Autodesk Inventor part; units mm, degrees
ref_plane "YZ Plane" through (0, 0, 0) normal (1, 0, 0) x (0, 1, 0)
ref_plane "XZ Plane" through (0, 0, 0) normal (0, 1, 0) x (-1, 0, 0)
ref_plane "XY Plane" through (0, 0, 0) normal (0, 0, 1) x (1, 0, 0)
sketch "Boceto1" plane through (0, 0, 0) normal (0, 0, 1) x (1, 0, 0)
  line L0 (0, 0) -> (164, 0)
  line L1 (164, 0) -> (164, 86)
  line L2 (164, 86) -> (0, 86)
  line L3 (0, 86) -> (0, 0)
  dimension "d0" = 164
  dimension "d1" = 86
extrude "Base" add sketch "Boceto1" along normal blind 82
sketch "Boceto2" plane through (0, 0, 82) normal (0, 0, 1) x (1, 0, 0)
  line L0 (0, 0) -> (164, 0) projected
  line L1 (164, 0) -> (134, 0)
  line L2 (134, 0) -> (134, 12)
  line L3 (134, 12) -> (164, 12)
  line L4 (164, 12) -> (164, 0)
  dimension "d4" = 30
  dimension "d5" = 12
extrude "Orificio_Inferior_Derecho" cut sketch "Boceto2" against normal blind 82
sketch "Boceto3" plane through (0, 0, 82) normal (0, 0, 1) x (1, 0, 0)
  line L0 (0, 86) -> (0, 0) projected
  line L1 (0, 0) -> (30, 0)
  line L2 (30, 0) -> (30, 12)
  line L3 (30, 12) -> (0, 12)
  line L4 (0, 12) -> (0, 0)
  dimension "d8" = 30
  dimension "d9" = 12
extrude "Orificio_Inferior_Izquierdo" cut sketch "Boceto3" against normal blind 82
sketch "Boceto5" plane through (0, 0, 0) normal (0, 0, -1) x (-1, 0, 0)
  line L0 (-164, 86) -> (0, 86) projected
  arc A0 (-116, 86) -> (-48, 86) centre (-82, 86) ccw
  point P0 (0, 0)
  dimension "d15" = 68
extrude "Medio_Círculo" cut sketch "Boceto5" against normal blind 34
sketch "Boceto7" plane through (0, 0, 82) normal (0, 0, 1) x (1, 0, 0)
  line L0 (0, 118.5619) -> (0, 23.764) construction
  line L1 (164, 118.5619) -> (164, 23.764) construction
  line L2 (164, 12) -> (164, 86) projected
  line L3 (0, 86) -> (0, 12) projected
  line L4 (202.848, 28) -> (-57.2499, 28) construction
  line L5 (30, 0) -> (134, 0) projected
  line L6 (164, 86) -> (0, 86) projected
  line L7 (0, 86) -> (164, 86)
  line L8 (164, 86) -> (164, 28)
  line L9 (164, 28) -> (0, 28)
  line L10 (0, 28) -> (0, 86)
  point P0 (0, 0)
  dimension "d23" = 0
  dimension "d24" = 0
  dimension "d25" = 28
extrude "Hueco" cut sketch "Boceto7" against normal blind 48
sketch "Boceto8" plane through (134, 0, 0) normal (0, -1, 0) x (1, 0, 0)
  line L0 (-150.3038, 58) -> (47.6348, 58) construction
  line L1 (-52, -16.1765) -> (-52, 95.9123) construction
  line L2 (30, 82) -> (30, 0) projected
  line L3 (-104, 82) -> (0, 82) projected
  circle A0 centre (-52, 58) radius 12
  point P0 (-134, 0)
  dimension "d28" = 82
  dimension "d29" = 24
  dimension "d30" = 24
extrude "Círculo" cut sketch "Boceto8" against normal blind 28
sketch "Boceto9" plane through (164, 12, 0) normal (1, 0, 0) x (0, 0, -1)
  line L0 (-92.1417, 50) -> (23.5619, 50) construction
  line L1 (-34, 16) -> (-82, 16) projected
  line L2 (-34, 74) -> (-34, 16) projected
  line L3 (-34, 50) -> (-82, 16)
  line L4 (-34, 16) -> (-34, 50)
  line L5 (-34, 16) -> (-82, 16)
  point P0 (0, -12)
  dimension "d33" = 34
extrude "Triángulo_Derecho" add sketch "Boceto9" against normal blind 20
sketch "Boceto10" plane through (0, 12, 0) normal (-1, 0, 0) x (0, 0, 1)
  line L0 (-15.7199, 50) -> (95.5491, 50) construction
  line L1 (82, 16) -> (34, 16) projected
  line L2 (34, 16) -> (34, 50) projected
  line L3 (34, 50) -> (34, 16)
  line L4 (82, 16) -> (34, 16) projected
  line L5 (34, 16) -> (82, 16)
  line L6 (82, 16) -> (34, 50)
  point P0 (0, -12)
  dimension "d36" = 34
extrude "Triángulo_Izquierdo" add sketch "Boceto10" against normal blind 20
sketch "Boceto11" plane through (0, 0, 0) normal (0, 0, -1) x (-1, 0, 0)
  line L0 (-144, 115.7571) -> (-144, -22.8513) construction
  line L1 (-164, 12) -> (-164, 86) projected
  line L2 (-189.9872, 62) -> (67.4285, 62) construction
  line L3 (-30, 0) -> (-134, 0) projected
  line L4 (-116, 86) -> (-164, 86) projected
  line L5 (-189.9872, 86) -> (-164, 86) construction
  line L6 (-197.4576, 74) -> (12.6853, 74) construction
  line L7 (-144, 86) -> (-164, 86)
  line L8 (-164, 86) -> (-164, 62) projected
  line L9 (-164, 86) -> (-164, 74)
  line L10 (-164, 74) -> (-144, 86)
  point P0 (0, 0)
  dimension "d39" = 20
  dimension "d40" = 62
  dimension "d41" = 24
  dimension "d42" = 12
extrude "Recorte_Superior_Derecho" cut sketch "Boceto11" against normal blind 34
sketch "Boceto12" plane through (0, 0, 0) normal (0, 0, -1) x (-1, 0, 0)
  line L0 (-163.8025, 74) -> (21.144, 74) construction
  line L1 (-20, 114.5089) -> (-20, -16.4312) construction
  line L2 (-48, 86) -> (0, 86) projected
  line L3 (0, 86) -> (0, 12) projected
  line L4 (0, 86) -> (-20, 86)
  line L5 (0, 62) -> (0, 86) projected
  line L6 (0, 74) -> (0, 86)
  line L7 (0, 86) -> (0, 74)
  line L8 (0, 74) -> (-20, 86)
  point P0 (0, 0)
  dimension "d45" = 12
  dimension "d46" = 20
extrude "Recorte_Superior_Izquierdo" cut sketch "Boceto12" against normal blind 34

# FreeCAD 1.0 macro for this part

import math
import FreeCAD as App
import Part
import Sketcher
from FreeCAD import Vector
Q = App.Units.Quantity


def add_polygon(sketch, points):
    """Adds a closed chain of lines whose ends are joined by coincident constraints."""
    first, n = sketch.GeometryCount, len(points)
    for a, b in zip(points, points[1:] + points[:1]):
        sketch.addGeometry(Part.LineSegment(App.Vector(*a, 0), App.Vector(*b, 0)), False)
    for i in range(n):
        sketch.addConstraint(Sketcher.Constraint("Coincident", first + i, 2, first + (i + 1) % n, 1))

doc = App.newDocument("Part")
params = doc.addObject("Spreadsheet::Sheet", "Params")
for row, (alias, value) in enumerate([
    ("sketch1_width", "164 mm"),
    ("sketch1_height", "86 mm"),
    ("pad1_length", "82 mm"),
    ("sketch2_width", "30 mm"),
    ("sketch2_height", "12 mm"),
    ("pocket1_length", "82 mm"),
    ("sketch3_width", "30 mm"),
    ("sketch3_height", "12 mm"),
    ("pocket2_length", "82 mm"),
    ("sketch4_radius", "34 mm"),
    ("pocket3_length", "34 mm"),
    ("sketch5_width", "164 mm"),
    ("sketch5_height", "58 mm"),
    ("pocket4_length", "48 mm"),
    ("sketch6_diameter", "24 mm"),
    ("pocket5_length", "28 mm"),
    ("sketch7_width", "34 mm"),
    ("sketch7_height", "48 mm"),
    ("pad2_length", "20 mm"),
    ("sketch8_width", "34 mm"),
    ("sketch8_height", "48 mm"),
    ("pad3_length", "20 mm"),
    ("sketch9_width", "20 mm"),
    ("sketch9_height", "12 mm"),
    ("pocket6_length", "34 mm"),
    ("sketch10_width", "20 mm"),
    ("sketch10_height", "12 mm"),
    ("pocket7_length", "34 mm"),
], start=1):
    params.set(f"A{row}", alias)
    params.set(f"B{row}", "=" + value)
    params.setAlias(f"B{row}", alias)

body = doc.addObject("PartDesign::Body", "Body")

sketch1 = body.newObject("Sketcher::SketchObject", "Sketch")
sketch1.AttachmentSupport = (doc.getObject("XY_Plane"), [""])
sketch1.MapMode = "FlatFace"
add_polygon(sketch1, [(0, 86), (0, 0), (164, 0), (164, 86)])
sketch1.addConstraint(Sketcher.Constraint("Vertical", 0))
sketch1.addConstraint(Sketcher.Constraint("Horizontal", 1))
sketch1.addConstraint(Sketcher.Constraint("Vertical", 2))
sketch1.addConstraint(Sketcher.Constraint("Horizontal", 3))
sketch1.addConstraint(Sketcher.Constraint("Coincident", 0, 2, -1, 1))
sketch1.addConstraint(Sketcher.Constraint("DistanceX", 1, 1, 1, 2, Q("164 mm")))
sketch1.addConstraint(Sketcher.Constraint("DistanceY", 0, 2, 0, 1, Q("86 mm")))
sketch1.setExpression("Constraints[9]", "Params.sketch1_width")
sketch1.setExpression("Constraints[10]", "Params.sketch1_height")
pad1 = body.newObject("PartDesign::Pad", "Pad")
pad1.Profile = sketch1
pad1.setExpression("Length", "Params.pad1_length")

sketch2 = body.newObject("Sketcher::SketchObject", "Sketch001")
sketch2.AttachmentSupport = (doc.getObject("XY_Plane"), [""])
sketch2.MapMode = "FlatFace"
sketch2.AttachmentOffset = App.Placement(Vector(0, 0, 82), App.Rotation())
add_polygon(sketch2, [(134, 12), (134, 0), (164, 0), (164, 12)])
sketch2.addConstraint(Sketcher.Constraint("Vertical", 0))
sketch2.addConstraint(Sketcher.Constraint("Horizontal", 1))
sketch2.addConstraint(Sketcher.Constraint("Vertical", 2))
sketch2.addConstraint(Sketcher.Constraint("Horizontal", 3))
sketch2.addConstraint(Sketcher.Constraint("PointOnObject", 0, 2, -1))
sketch2.addConstraint(Sketcher.Constraint("DistanceX", 1, 1, 1, 2, Q("30 mm")))
sketch2.addConstraint(Sketcher.Constraint("DistanceY", 0, 2, 0, 1, Q("12 mm")))
sketch2.addConstraint(Sketcher.Constraint("DistanceX", -1, 1, 0, 2, Q("134 mm")))
sketch2.setExpression("Constraints[9]", "Params.sketch2_width")
sketch2.setExpression("Constraints[10]", "Params.sketch2_height")
pocket1 = body.newObject("PartDesign::Pocket", "Pocket")
pocket1.Profile = sketch2
pocket1.setExpression("Length", "Params.pocket1_length")

sketch3 = body.newObject("Sketcher::SketchObject", "Sketch002")
sketch3.AttachmentSupport = (doc.getObject("XY_Plane"), [""])
sketch3.MapMode = "FlatFace"
sketch3.AttachmentOffset = App.Placement(Vector(0, 0, 82), App.Rotation())
add_polygon(sketch3, [(30, 12), (0, 12), (0, 0), (30, 0)])
sketch3.addConstraint(Sketcher.Constraint("Horizontal", 0))
sketch3.addConstraint(Sketcher.Constraint("Vertical", 1))
sketch3.addConstraint(Sketcher.Constraint("Horizontal", 2))
sketch3.addConstraint(Sketcher.Constraint("Vertical", 3))
sketch3.addConstraint(Sketcher.Constraint("Coincident", 1, 2, -1, 1))
sketch3.addConstraint(Sketcher.Constraint("DistanceX", 0, 2, 0, 1, Q("30 mm")))
sketch3.addConstraint(Sketcher.Constraint("DistanceY", 1, 2, 1, 1, Q("12 mm")))
sketch3.setExpression("Constraints[9]", "Params.sketch3_width")
sketch3.setExpression("Constraints[10]", "Params.sketch3_height")
pocket2 = body.newObject("PartDesign::Pocket", "Pocket001")
pocket2.Profile = sketch3
pocket2.setExpression("Length", "Params.pocket2_length")

sketch4 = body.newObject("Sketcher::SketchObject", "Sketch003")
sketch4.AttachmentSupport = (doc.getObject("XY_Plane"), [""])
sketch4.MapMode = "FlatFace"
sketch4.addGeometry(Part.LineSegment(Vector(48, 86, 0), Vector(116, 86, 0)), False)
sketch4.addGeometry(Part.ArcOfCircle(Part.Circle(Vector(82, 86, 0), Vector(0, 0, 1), 34), math.radians(180), math.radians(360)), False)
sketch4.addConstraint(Sketcher.Constraint("Coincident", 0, 1, 1, 1))
sketch4.addConstraint(Sketcher.Constraint("Coincident", 1, 2, 0, 2))
sketch4.addConstraint(Sketcher.Constraint("Horizontal", 0))
sketch4.addConstraint(Sketcher.Constraint("Horizontal", 1, 3, 0, 1))
sketch4.addConstraint(Sketcher.Constraint("Radius", 1, Q("34 mm")))
sketch4.addConstraint(Sketcher.Constraint("DistanceX", -1, 1, 1, 3, Q("82 mm")))
sketch4.addConstraint(Sketcher.Constraint("DistanceY", -1, 1, 1, 3, Q("86 mm")))
sketch4.setExpression("Constraints[4]", "Params.sketch4_radius")
pocket3 = body.newObject("PartDesign::Pocket", "Pocket002")
pocket3.Profile = sketch4
pocket3.setExpression("Length", "Params.pocket3_length")
pocket3.Reversed = True

sketch5 = body.newObject("Sketcher::SketchObject", "Sketch004")
sketch5.AttachmentSupport = (doc.getObject("XY_Plane"), [""])
sketch5.MapMode = "FlatFace"
sketch5.AttachmentOffset = App.Placement(Vector(0, 0, 82), App.Rotation())
add_polygon(sketch5, [(0, 28), (164, 28), (164, 86), (0, 86)])
sketch5.addConstraint(Sketcher.Constraint("Horizontal", 0))
sketch5.addConstraint(Sketcher.Constraint("Vertical", 1))
sketch5.addConstraint(Sketcher.Constraint("Horizontal", 2))
sketch5.addConstraint(Sketcher.Constraint("Vertical", 3))
sketch5.addConstraint(Sketcher.Constraint("PointOnObject", 2, 2, -2))
sketch5.addConstraint(Sketcher.Constraint("DistanceY", -1, 1, 0, 2, Q("28 mm")))
sketch5.addConstraint(Sketcher.Constraint("DistanceX", 0, 1, 0, 2, Q("164 mm")))
sketch5.addConstraint(Sketcher.Constraint("DistanceY", 1, 1, 1, 2, Q("58 mm")))
sketch5.setExpression("Constraints[10]", "Params.sketch5_width")
sketch5.setExpression("Constraints[11]", "Params.sketch5_height")
pocket4 = body.newObject("PartDesign::Pocket", "Pocket003")
pocket4.Profile = sketch5
pocket4.setExpression("Length", "Params.pocket4_length")

sketch6 = body.newObject("Sketcher::SketchObject", "Sketch005")
sketch6.AttachmentSupport = (doc.getObject("XZ_Plane"), [""])
sketch6.MapMode = "FlatFace"
sketch6.addGeometry(Part.Circle(Vector(82, 58, 0), Vector(0, 0, 1), 12), False)
sketch6.addConstraint(Sketcher.Constraint("Diameter", 0, Q("24 mm")))
sketch6.addConstraint(Sketcher.Constraint("DistanceX", -1, 1, 0, 3, Q("82 mm")))
sketch6.addConstraint(Sketcher.Constraint("DistanceY", -1, 1, 0, 3, Q("58 mm")))
sketch6.setExpression("Constraints[0]", "Params.sketch6_diameter")
pocket5 = body.newObject("PartDesign::Pocket", "Pocket004")
pocket5.Profile = sketch6
pocket5.setExpression("Length", "Params.pocket5_length")

sketch7 = body.newObject("Sketcher::SketchObject", "Sketch006")
sketch7.AttachmentSupport = (doc.getObject("YZ_Plane"), [""])
sketch7.MapMode = "FlatFace"
sketch7.AttachmentOffset = App.Placement(Vector(0, 0, 164), App.Rotation())
add_polygon(sketch7, [(28, 82), (28, 34), (62, 34)])
sketch7.addConstraint(Sketcher.Constraint("Vertical", 0))
sketch7.addConstraint(Sketcher.Constraint("Horizontal", 1))
sketch7.addConstraint(Sketcher.Constraint("DistanceX", 1, 1, 1, 2, Q("34 mm")))
sketch7.addConstraint(Sketcher.Constraint("DistanceY", -1, 1, 0, 2, Q("34 mm")))
sketch7.addConstraint(Sketcher.Constraint("DistanceY", 0, 2, 0, 1, Q("48 mm")))
sketch7.addConstraint(Sketcher.Constraint("DistanceX", -1, 1, 0, 2, Q("28 mm")))
sketch7.setExpression("Constraints[5]", "Params.sketch7_width")
sketch7.setExpression("Constraints[7]", "Params.sketch7_height")
pad2 = body.newObject("PartDesign::Pad", "Pad001")
pad2.Profile = sketch7
pad2.setExpression("Length", "Params.pad2_length")
pad2.Reversed = True

sketch8 = body.newObject("Sketcher::SketchObject", "Sketch007")
sketch8.AttachmentSupport = (doc.getObject("YZ_Plane"), [""])
sketch8.MapMode = "FlatFace"
add_polygon(sketch8, [(28, 34), (28, 82), (62, 34)])
sketch8.addConstraint(Sketcher.Constraint("Vertical", 0))
sketch8.addConstraint(Sketcher.Constraint("Horizontal", 2))
sketch8.addConstraint(Sketcher.Constraint("DistanceX", 2, 2, 2, 1, Q("34 mm")))
sketch8.addConstraint(Sketcher.Constraint("DistanceY", -1, 1, 1, 2, Q("34 mm")))
sketch8.addConstraint(Sketcher.Constraint("DistanceY", 0, 1, 0, 2, Q("48 mm")))
sketch8.addConstraint(Sketcher.Constraint("DistanceX", -1, 1, 0, 2, Q("28 mm")))
sketch8.setExpression("Constraints[5]", "Params.sketch8_width")
sketch8.setExpression("Constraints[7]", "Params.sketch8_height")
pad3 = body.newObject("PartDesign::Pad", "Pad002")
pad3.Profile = sketch8
pad3.setExpression("Length", "Params.pad3_length")

sketch9 = body.newObject("Sketcher::SketchObject", "Sketch008")
sketch9.AttachmentSupport = (doc.getObject("XY_Plane"), [""])
sketch9.MapMode = "FlatFace"
add_polygon(sketch9, [(164, 86), (164, 74), (144, 86)])
sketch9.addConstraint(Sketcher.Constraint("Vertical", 0))
sketch9.addConstraint(Sketcher.Constraint("Horizontal", 2))
sketch9.addConstraint(Sketcher.Constraint("DistanceX", 2, 1, 2, 2, Q("20 mm")))
sketch9.addConstraint(Sketcher.Constraint("DistanceY", 0, 2, 0, 1, Q("12 mm")))
sketch9.addConstraint(Sketcher.Constraint("DistanceX", -1, 1, 0, 2, Q("164 mm")))
sketch9.addConstraint(Sketcher.Constraint("DistanceY", -1, 1, 0, 2, Q("74 mm")))
sketch9.setExpression("Constraints[5]", "Params.sketch9_width")
sketch9.setExpression("Constraints[6]", "Params.sketch9_height")
pocket6 = body.newObject("PartDesign::Pocket", "Pocket005")
pocket6.Profile = sketch9
pocket6.setExpression("Length", "Params.pocket6_length")
pocket6.Reversed = True

sketch10 = body.newObject("Sketcher::SketchObject", "Sketch009")
sketch10.AttachmentSupport = (doc.getObject("XY_Plane"), [""])
sketch10.MapMode = "FlatFace"
add_polygon(sketch10, [(0, 86), (20, 86), (0, 74)])
sketch10.addConstraint(Sketcher.Constraint("Horizontal", 0))
sketch10.addConstraint(Sketcher.Constraint("Vertical", 2))
sketch10.addConstraint(Sketcher.Constraint("PointOnObject", 1, 2, -2))
sketch10.addConstraint(Sketcher.Constraint("DistanceX", 0, 1, 0, 2, Q("20 mm")))
sketch10.addConstraint(Sketcher.Constraint("DistanceY", 2, 1, 2, 2, Q("12 mm")))
sketch10.addConstraint(Sketcher.Constraint("DistanceY", -1, 1, 0, 2, Q("86 mm")))
sketch10.setExpression("Constraints[6]", "Params.sketch10_width")
sketch10.setExpression("Constraints[7]", "Params.sketch10_height")
pocket7 = body.newObject("PartDesign::Pocket", "Pocket006")
pocket7.Profile = sketch10
pocket7.setExpression("Length", "Params.pocket7_length")
pocket7.Reversed = True

doc.recompute()
